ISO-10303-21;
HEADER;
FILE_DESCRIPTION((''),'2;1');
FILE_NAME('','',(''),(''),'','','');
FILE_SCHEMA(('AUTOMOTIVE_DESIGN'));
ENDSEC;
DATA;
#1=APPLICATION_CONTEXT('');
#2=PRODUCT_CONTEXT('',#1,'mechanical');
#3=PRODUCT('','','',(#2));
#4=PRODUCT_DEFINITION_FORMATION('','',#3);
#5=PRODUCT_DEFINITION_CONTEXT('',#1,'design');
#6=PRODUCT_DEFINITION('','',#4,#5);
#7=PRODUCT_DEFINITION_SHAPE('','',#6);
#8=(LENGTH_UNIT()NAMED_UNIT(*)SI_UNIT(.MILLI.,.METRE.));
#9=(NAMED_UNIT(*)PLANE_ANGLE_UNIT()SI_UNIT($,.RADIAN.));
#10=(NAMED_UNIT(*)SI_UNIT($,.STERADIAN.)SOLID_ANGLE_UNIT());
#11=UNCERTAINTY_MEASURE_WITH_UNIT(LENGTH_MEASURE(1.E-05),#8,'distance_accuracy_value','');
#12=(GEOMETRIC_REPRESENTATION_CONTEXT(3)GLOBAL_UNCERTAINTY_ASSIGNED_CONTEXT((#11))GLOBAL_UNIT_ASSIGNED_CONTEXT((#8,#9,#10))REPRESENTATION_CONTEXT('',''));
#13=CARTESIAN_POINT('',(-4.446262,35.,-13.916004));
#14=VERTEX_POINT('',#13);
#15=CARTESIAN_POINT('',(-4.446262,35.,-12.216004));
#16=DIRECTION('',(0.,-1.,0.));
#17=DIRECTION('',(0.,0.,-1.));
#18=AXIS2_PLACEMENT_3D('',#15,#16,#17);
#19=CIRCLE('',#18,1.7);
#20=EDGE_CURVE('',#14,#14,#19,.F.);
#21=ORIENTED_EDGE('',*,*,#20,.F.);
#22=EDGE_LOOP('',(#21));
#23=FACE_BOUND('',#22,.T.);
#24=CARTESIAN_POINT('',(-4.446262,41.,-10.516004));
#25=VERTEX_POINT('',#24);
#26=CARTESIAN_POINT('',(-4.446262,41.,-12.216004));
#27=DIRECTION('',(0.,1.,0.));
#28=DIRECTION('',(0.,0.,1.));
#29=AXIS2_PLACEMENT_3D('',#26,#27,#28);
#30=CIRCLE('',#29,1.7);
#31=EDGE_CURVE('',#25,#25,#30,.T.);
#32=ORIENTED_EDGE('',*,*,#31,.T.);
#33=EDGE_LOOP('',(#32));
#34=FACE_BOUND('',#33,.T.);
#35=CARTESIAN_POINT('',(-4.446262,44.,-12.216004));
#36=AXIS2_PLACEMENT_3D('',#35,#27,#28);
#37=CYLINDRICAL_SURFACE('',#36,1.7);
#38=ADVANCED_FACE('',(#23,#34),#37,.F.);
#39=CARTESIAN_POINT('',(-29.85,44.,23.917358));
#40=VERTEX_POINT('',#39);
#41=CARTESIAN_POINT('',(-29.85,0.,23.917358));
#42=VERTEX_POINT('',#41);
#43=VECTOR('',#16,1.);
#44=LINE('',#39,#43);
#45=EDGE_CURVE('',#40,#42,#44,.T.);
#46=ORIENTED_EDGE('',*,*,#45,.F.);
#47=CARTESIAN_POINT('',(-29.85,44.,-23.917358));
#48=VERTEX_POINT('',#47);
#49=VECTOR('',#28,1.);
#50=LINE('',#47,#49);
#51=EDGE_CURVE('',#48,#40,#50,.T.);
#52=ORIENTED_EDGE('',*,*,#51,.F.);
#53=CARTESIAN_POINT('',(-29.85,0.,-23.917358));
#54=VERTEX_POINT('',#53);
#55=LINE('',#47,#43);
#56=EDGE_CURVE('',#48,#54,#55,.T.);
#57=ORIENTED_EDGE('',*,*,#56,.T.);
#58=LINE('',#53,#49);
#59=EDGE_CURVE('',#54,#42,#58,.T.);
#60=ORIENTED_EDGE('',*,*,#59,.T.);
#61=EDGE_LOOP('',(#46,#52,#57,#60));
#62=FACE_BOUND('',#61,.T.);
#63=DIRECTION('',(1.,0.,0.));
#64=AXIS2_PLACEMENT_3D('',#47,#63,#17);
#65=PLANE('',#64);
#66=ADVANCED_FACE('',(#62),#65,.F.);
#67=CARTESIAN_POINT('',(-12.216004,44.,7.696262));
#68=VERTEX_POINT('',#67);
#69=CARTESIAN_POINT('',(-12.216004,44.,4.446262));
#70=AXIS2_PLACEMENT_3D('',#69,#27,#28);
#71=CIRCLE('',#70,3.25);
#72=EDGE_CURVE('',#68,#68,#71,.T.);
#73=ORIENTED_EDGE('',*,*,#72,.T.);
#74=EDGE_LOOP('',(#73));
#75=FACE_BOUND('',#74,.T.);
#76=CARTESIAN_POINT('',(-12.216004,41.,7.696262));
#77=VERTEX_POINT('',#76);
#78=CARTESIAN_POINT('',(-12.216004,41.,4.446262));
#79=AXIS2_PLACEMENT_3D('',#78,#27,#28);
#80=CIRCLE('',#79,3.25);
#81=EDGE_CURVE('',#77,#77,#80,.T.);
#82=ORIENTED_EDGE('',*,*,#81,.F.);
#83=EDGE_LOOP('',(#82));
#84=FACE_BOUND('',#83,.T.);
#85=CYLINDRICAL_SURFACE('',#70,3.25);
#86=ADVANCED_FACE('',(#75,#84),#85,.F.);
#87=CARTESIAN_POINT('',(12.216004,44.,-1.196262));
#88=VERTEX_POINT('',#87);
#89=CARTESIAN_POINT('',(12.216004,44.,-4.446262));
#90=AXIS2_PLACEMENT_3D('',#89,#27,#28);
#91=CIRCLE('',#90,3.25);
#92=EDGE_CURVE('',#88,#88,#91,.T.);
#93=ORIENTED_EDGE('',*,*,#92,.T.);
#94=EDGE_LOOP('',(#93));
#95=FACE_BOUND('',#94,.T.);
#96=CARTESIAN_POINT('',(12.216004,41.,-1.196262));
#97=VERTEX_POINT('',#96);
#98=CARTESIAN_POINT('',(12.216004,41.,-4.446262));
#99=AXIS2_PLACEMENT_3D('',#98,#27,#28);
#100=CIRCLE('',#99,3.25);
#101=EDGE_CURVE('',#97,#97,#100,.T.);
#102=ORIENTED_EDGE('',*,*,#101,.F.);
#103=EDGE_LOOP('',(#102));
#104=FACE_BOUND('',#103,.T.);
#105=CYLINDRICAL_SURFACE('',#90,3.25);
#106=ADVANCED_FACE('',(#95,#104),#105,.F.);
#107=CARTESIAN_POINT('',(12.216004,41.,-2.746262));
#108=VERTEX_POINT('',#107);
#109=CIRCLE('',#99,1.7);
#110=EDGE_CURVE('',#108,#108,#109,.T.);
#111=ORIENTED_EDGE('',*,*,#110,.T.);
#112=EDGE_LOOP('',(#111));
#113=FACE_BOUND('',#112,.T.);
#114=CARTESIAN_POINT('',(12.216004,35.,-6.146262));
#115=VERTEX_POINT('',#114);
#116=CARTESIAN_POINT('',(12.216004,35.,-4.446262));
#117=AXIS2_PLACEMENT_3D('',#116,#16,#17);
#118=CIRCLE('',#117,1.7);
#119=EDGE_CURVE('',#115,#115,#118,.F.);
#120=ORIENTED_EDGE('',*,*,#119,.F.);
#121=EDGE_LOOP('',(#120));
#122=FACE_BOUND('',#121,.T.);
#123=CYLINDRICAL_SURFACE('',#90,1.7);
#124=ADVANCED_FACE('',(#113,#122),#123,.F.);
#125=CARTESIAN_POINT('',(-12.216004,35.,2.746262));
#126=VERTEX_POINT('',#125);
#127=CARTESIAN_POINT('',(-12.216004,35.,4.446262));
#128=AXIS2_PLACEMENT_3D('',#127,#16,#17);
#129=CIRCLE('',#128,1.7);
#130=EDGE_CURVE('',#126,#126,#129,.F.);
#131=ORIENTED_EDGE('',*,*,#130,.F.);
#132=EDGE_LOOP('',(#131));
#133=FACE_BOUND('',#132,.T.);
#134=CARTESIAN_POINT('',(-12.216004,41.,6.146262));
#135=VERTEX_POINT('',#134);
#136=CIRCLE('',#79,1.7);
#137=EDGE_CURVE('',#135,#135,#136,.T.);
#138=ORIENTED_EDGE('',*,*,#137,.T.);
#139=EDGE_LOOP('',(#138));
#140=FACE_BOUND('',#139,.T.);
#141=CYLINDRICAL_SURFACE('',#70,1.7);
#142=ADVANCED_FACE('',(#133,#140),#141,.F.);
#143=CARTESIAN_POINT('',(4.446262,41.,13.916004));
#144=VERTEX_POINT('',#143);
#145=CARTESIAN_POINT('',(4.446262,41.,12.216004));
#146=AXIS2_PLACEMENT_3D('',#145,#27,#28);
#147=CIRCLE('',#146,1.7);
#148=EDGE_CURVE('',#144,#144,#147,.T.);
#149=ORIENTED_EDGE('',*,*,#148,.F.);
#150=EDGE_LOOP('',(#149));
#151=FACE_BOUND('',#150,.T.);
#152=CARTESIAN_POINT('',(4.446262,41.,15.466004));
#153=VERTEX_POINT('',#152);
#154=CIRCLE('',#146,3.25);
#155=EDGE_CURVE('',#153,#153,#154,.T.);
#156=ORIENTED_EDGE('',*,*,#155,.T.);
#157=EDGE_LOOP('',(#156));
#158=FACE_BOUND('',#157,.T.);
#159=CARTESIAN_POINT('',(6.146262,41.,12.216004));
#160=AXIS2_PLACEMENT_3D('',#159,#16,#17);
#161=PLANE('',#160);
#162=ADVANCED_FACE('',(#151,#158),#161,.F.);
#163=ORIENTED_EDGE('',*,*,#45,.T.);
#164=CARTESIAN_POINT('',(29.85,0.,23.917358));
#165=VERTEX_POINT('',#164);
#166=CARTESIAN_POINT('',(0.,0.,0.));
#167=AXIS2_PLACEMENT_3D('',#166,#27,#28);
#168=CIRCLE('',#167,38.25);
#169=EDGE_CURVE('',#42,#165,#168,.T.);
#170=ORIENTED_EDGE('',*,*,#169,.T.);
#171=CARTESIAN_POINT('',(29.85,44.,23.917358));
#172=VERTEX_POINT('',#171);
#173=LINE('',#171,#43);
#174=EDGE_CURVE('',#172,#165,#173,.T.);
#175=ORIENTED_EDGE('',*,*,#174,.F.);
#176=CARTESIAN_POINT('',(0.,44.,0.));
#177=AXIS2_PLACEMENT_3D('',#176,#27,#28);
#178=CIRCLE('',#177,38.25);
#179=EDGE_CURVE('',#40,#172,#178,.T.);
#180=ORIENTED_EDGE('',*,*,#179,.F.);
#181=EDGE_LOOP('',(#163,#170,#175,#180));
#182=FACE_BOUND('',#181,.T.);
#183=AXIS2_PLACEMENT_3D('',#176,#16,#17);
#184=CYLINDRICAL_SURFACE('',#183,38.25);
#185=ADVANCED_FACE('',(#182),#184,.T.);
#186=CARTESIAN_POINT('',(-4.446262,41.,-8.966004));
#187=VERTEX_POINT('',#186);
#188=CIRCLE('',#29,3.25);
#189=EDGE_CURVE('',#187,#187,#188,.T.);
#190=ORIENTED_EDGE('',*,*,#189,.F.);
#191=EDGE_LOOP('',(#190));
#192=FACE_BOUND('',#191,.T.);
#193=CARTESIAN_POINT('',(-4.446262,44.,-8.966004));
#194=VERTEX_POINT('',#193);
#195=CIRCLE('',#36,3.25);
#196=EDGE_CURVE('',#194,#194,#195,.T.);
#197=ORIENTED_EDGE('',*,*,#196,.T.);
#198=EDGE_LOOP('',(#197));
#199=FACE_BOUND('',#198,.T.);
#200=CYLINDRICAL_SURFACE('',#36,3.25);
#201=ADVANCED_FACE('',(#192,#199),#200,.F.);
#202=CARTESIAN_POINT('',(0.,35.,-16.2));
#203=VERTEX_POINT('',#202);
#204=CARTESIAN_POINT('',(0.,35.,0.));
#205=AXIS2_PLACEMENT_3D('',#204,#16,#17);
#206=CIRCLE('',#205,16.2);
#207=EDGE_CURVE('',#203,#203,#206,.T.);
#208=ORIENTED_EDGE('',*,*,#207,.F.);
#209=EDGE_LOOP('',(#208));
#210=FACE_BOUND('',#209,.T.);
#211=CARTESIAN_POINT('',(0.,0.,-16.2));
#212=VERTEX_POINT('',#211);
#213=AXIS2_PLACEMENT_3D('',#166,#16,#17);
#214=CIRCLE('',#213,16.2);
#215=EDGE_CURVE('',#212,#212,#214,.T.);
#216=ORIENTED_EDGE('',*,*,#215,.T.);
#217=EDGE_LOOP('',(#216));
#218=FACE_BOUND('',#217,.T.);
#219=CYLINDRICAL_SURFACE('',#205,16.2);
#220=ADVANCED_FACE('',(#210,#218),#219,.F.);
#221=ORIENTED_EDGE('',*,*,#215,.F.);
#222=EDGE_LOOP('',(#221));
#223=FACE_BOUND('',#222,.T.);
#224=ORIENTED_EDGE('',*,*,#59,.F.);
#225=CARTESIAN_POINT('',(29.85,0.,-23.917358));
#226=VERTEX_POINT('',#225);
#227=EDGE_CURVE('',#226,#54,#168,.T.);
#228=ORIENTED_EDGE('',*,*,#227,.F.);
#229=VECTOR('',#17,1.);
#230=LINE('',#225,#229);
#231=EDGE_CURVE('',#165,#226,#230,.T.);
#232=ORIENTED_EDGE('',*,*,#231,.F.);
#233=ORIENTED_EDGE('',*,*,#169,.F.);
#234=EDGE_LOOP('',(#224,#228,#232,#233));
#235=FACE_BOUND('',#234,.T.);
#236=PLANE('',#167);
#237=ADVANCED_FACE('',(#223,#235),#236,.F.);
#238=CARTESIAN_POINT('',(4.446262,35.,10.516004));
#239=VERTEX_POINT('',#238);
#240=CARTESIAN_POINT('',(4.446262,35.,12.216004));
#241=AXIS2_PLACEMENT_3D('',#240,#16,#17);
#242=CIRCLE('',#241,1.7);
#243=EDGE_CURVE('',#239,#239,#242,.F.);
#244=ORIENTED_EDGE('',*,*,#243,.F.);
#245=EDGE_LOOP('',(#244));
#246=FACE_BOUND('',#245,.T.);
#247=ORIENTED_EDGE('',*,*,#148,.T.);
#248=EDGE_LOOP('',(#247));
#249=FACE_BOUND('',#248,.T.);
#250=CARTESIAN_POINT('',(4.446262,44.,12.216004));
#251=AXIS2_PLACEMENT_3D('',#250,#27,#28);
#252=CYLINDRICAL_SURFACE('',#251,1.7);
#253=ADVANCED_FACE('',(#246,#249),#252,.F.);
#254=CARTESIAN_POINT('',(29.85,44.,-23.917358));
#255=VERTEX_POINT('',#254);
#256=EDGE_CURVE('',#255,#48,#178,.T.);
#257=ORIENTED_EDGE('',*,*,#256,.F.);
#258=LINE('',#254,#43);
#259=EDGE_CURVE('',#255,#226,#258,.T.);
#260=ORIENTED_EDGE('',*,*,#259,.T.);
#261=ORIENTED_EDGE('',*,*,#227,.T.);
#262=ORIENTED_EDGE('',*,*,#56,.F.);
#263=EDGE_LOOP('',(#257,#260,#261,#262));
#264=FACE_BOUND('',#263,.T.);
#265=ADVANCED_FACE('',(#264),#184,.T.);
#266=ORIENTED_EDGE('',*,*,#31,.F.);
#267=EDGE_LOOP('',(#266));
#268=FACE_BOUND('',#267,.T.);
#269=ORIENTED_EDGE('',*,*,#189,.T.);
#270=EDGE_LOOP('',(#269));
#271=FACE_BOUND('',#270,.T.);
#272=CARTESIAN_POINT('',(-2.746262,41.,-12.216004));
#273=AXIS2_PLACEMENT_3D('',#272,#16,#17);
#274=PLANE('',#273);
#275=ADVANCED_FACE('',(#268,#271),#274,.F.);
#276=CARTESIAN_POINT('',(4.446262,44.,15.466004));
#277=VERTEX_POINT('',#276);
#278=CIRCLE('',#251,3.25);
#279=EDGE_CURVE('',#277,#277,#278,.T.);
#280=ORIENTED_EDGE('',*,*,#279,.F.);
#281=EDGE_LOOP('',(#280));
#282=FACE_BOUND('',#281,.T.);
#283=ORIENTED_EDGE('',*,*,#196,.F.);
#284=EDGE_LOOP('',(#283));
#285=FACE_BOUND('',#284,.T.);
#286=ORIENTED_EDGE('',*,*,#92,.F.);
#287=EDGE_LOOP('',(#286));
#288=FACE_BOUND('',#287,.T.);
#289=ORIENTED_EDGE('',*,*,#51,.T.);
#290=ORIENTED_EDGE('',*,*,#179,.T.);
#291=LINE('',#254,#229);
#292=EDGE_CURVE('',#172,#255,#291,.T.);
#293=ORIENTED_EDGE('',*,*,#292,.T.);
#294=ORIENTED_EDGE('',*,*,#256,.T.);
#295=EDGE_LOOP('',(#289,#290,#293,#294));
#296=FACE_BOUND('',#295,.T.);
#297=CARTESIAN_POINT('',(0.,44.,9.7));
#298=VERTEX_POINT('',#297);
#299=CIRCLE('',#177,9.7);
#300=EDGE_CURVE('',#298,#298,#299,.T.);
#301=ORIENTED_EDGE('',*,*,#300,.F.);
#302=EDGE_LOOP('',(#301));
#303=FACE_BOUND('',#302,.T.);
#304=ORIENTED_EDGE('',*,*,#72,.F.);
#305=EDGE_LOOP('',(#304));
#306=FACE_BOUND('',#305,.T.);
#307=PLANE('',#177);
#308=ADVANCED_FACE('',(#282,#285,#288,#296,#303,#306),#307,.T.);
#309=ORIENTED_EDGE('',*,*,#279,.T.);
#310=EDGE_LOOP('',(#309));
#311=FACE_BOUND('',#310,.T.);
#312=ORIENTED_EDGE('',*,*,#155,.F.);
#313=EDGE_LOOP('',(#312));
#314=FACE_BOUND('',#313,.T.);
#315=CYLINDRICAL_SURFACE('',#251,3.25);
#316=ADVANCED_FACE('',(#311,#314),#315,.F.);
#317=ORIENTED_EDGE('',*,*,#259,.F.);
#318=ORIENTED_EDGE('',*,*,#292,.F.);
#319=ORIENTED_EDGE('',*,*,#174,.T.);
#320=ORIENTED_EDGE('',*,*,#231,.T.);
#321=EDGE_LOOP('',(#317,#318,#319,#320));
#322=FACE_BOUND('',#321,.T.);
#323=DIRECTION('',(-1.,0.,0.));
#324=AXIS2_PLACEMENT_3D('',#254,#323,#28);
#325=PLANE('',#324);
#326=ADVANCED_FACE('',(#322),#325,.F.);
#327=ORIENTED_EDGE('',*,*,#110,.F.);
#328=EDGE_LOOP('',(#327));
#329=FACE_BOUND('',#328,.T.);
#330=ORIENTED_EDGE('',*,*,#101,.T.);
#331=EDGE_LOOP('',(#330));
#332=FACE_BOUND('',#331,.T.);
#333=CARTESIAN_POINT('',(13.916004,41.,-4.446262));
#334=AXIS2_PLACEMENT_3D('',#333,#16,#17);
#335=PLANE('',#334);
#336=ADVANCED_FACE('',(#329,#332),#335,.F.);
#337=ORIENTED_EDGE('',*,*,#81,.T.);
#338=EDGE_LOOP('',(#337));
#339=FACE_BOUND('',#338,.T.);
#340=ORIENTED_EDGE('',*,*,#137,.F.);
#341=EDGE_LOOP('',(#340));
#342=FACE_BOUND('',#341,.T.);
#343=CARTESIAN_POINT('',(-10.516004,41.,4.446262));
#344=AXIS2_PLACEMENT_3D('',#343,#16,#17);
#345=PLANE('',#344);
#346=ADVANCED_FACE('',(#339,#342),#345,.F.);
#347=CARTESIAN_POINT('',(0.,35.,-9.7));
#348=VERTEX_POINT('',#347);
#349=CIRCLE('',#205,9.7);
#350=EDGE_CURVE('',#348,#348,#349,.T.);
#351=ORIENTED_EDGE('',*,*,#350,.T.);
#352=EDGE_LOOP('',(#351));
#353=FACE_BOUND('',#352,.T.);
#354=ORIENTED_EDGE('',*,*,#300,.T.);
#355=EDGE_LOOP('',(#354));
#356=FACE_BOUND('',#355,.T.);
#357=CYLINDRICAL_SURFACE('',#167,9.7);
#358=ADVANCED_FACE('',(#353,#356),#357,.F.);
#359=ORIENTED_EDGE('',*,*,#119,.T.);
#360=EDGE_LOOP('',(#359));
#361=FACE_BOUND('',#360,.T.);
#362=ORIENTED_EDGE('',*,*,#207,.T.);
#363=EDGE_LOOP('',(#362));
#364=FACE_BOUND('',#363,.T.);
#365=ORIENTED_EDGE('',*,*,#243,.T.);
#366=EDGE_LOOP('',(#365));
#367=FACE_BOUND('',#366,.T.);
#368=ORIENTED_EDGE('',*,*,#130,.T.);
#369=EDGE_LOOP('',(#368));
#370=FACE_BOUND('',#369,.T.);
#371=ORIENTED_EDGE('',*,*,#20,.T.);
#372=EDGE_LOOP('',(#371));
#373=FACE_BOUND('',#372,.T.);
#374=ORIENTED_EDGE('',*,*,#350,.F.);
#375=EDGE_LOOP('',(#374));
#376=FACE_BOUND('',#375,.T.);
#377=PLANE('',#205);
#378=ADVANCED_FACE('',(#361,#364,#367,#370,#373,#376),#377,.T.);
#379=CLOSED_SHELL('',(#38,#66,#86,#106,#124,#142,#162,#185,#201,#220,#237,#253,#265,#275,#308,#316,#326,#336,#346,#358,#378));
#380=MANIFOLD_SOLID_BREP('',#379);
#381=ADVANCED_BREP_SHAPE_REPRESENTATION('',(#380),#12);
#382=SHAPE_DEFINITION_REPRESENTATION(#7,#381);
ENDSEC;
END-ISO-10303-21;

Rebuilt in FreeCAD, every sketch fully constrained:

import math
import FreeCAD as App
import Part
import Sketcher

V = App.Vector
Q = App.Units.Quantity

doc = App.newDocument("Part")
params = doc.addObject("Spreadsheet::Sheet", "Params")
for row, (alias, value) in enumerate([
    ("sketch1_radius", "38.25 mm"),
    ("pad1_length", "44 mm"),
    ("sketch2_diameter", "3.4 mm"),
    ("hole_diameter", "3.4 mm"),
    ("hole_cbore_diameter", "6.5 mm"),
    ("hole_cbore_depth", "3 mm"),
    ("sketch3_diameter", "32.4 mm"),
    ("pocket1_length", "35 mm"),
    ("sketch4_diameter", "19.4 mm"),
], start=1):
    params.set(f"A{row}", alias)
    params.set(f"B{row}", "=" + value)
    params.setAlias(f"B{row}", alias)

body = doc.addObject("PartDesign::Body", "Body")

# Sketch on XZ plane
sketch1 = body.newObject("Sketcher::SketchObject", "Sketch")
sketch1.AttachmentSupport = (doc.getObject("XZ_Plane"), [""])
sketch1.MapMode = "FlatFace"
sketch1.addGeometry(Part.LineSegment(V(-29.85, -23.917358, 0), V(-29.85, 23.917358, 0)), False)
sketch1.addGeometry(Part.ArcOfCircle(Part.Circle(V(0, 0, 0), V(0, 0, 1), 38.25), math.radians(38.703505), math.radians(141.296495)), False)
sketch1.addGeometry(Part.LineSegment(V(29.85, 23.917358, 0), V(29.85, -23.917358, 0)), False)
sketch1.addGeometry(Part.ArcOfCircle(Part.Circle(V(0, 0, 0), V(0, 0, 1), 38.25), math.radians(-141.296495), math.radians(-38.703505)), False)
sketch1.addConstraint(Sketcher.Constraint("Coincident", 0, 2, 1, 2))
sketch1.addConstraint(Sketcher.Constraint("Coincident", 1, 1, 2, 1))
sketch1.addConstraint(Sketcher.Constraint("Coincident", 2, 2, 3, 2))
sketch1.addConstraint(Sketcher.Constraint("Coincident", 3, 1, 0, 1))
sketch1.addConstraint(Sketcher.Constraint("Vertical", 0))
sketch1.addConstraint(Sketcher.Constraint("Vertical", 2))
sketch1.addConstraint(Sketcher.Constraint("Coincident", 1, 3, -1, 1))
sketch1.addConstraint(Sketcher.Constraint("Coincident", 3, 3, -1, 1))
sketch1.addConstraint(Sketcher.Constraint("Equal", 1, 3))
sketch1.addConstraint(Sketcher.Constraint("Horizontal", 0, 2, 1, 1))
sketch1.addConstraint(Sketcher.Constraint("Radius", 1, Q("38.25 mm")))
sketch1.addConstraint(Sketcher.Constraint("DistanceX", 0, 2, 1, 1, Q("59.7 mm")))
sketch1.setExpression("Constraints[10]", "Params.sketch1_radius")
pad1 = body.newObject("PartDesign::Pad", "Pad")
pad1.Profile = sketch1
pad1.setExpression("Length", "Params.pad1_length")
pad1.Reversed = True

# Sketch on XZ plane
sketch2 = body.newObject("Sketcher::SketchObject", "Sketch001")
sketch2.AttachmentSupport = (doc.getObject("XZ_Plane"), [""])
sketch2.MapMode = "FlatFace"
sketch2.AttachmentOffset = App.Placement(V(0, 0, -44), App.Rotation())
sketch2.addGeometry(Part.Circle(V(-4.446262, -12.216004, 0), V(0, 0, 1), 1.7), False)
sketch2.addConstraint(Sketcher.Constraint("Diameter", 0, Q("3.4 mm")))
sketch2.addConstraint(Sketcher.Constraint("DistanceX", 0, 3, -1, 1, Q("4.446262 mm")))
sketch2.addConstraint(Sketcher.Constraint("DistanceY", 0, 3, -1, 1, Q("12.216004 mm")))
sketch2.setExpression("Constraints[0]", "Params.sketch2_diameter")
doc.recompute()
hole = body.newObject("PartDesign::Hole", "Hole")
hole.Profile = sketch2
hole.ThreadType = "None"
hole.setExpression("Diameter", "Params.hole_diameter")
hole.DepthType = "ThroughAll"
hole.HoleCutType = "Counterbore"
hole.setExpression("HoleCutDiameter", "Params.hole_cbore_diameter")
hole.setExpression("HoleCutDepth", "Params.hole_cbore_depth")
hole.Reversed = True
doc.recompute()

polarpattern = body.newObject("PartDesign::PolarPattern", "PolarPattern")
polarpattern.Originals = [hole]
polarpattern.Axis = (doc.getObject("Y_Axis"), [""])
polarpattern.Angle = 360
polarpattern.Occurrences = 4
body.Tip = polarpattern

# Sketch on XZ plane
sketch3 = body.newObject("Sketcher::SketchObject", "Sketch002")
sketch3.AttachmentSupport = (doc.getObject("XZ_Plane"), [""])
sketch3.MapMode = "FlatFace"
sketch3.addGeometry(Part.Circle(V(0, 0, 0), V(0, 0, 1), 16.2), False)
sketch3.addConstraint(Sketcher.Constraint("Coincident", 0, 3, -1, 1))
sketch3.addConstraint(Sketcher.Constraint("Diameter", 0, Q("32.4 mm")))
sketch3.setExpression("Constraints[1]", "Params.sketch3_diameter")
pocket1 = body.newObject("PartDesign::Pocket", "Pocket")
pocket1.Profile = sketch3
pocket1.setExpression("Length", "Params.pocket1_length")

# Sketch on XZ plane
sketch4 = body.newObject("Sketcher::SketchObject", "Sketch003")
sketch4.AttachmentSupport = (doc.getObject("XZ_Plane"), [""])
sketch4.MapMode = "FlatFace"
sketch4.AttachmentOffset = App.Placement(V(0, 0, -44), App.Rotation())
sketch4.addGeometry(Part.Circle(V(0, 0, 0), V(0, 0, 1), 9.7), False)
sketch4.addConstraint(Sketcher.Constraint("Coincident", 0, 3, -1, 1))
sketch4.addConstraint(Sketcher.Constraint("Diameter", 0, Q("19.4 mm")))
sketch4.setExpression("Constraints[1]", "Params.sketch4_diameter")
pocket2 = body.newObject("PartDesign::Pocket", "Pocket001")
pocket2.Profile = sketch4
pocket2.Type = "ThroughAll"
pocket2.Reversed = True

doc.recompute()
